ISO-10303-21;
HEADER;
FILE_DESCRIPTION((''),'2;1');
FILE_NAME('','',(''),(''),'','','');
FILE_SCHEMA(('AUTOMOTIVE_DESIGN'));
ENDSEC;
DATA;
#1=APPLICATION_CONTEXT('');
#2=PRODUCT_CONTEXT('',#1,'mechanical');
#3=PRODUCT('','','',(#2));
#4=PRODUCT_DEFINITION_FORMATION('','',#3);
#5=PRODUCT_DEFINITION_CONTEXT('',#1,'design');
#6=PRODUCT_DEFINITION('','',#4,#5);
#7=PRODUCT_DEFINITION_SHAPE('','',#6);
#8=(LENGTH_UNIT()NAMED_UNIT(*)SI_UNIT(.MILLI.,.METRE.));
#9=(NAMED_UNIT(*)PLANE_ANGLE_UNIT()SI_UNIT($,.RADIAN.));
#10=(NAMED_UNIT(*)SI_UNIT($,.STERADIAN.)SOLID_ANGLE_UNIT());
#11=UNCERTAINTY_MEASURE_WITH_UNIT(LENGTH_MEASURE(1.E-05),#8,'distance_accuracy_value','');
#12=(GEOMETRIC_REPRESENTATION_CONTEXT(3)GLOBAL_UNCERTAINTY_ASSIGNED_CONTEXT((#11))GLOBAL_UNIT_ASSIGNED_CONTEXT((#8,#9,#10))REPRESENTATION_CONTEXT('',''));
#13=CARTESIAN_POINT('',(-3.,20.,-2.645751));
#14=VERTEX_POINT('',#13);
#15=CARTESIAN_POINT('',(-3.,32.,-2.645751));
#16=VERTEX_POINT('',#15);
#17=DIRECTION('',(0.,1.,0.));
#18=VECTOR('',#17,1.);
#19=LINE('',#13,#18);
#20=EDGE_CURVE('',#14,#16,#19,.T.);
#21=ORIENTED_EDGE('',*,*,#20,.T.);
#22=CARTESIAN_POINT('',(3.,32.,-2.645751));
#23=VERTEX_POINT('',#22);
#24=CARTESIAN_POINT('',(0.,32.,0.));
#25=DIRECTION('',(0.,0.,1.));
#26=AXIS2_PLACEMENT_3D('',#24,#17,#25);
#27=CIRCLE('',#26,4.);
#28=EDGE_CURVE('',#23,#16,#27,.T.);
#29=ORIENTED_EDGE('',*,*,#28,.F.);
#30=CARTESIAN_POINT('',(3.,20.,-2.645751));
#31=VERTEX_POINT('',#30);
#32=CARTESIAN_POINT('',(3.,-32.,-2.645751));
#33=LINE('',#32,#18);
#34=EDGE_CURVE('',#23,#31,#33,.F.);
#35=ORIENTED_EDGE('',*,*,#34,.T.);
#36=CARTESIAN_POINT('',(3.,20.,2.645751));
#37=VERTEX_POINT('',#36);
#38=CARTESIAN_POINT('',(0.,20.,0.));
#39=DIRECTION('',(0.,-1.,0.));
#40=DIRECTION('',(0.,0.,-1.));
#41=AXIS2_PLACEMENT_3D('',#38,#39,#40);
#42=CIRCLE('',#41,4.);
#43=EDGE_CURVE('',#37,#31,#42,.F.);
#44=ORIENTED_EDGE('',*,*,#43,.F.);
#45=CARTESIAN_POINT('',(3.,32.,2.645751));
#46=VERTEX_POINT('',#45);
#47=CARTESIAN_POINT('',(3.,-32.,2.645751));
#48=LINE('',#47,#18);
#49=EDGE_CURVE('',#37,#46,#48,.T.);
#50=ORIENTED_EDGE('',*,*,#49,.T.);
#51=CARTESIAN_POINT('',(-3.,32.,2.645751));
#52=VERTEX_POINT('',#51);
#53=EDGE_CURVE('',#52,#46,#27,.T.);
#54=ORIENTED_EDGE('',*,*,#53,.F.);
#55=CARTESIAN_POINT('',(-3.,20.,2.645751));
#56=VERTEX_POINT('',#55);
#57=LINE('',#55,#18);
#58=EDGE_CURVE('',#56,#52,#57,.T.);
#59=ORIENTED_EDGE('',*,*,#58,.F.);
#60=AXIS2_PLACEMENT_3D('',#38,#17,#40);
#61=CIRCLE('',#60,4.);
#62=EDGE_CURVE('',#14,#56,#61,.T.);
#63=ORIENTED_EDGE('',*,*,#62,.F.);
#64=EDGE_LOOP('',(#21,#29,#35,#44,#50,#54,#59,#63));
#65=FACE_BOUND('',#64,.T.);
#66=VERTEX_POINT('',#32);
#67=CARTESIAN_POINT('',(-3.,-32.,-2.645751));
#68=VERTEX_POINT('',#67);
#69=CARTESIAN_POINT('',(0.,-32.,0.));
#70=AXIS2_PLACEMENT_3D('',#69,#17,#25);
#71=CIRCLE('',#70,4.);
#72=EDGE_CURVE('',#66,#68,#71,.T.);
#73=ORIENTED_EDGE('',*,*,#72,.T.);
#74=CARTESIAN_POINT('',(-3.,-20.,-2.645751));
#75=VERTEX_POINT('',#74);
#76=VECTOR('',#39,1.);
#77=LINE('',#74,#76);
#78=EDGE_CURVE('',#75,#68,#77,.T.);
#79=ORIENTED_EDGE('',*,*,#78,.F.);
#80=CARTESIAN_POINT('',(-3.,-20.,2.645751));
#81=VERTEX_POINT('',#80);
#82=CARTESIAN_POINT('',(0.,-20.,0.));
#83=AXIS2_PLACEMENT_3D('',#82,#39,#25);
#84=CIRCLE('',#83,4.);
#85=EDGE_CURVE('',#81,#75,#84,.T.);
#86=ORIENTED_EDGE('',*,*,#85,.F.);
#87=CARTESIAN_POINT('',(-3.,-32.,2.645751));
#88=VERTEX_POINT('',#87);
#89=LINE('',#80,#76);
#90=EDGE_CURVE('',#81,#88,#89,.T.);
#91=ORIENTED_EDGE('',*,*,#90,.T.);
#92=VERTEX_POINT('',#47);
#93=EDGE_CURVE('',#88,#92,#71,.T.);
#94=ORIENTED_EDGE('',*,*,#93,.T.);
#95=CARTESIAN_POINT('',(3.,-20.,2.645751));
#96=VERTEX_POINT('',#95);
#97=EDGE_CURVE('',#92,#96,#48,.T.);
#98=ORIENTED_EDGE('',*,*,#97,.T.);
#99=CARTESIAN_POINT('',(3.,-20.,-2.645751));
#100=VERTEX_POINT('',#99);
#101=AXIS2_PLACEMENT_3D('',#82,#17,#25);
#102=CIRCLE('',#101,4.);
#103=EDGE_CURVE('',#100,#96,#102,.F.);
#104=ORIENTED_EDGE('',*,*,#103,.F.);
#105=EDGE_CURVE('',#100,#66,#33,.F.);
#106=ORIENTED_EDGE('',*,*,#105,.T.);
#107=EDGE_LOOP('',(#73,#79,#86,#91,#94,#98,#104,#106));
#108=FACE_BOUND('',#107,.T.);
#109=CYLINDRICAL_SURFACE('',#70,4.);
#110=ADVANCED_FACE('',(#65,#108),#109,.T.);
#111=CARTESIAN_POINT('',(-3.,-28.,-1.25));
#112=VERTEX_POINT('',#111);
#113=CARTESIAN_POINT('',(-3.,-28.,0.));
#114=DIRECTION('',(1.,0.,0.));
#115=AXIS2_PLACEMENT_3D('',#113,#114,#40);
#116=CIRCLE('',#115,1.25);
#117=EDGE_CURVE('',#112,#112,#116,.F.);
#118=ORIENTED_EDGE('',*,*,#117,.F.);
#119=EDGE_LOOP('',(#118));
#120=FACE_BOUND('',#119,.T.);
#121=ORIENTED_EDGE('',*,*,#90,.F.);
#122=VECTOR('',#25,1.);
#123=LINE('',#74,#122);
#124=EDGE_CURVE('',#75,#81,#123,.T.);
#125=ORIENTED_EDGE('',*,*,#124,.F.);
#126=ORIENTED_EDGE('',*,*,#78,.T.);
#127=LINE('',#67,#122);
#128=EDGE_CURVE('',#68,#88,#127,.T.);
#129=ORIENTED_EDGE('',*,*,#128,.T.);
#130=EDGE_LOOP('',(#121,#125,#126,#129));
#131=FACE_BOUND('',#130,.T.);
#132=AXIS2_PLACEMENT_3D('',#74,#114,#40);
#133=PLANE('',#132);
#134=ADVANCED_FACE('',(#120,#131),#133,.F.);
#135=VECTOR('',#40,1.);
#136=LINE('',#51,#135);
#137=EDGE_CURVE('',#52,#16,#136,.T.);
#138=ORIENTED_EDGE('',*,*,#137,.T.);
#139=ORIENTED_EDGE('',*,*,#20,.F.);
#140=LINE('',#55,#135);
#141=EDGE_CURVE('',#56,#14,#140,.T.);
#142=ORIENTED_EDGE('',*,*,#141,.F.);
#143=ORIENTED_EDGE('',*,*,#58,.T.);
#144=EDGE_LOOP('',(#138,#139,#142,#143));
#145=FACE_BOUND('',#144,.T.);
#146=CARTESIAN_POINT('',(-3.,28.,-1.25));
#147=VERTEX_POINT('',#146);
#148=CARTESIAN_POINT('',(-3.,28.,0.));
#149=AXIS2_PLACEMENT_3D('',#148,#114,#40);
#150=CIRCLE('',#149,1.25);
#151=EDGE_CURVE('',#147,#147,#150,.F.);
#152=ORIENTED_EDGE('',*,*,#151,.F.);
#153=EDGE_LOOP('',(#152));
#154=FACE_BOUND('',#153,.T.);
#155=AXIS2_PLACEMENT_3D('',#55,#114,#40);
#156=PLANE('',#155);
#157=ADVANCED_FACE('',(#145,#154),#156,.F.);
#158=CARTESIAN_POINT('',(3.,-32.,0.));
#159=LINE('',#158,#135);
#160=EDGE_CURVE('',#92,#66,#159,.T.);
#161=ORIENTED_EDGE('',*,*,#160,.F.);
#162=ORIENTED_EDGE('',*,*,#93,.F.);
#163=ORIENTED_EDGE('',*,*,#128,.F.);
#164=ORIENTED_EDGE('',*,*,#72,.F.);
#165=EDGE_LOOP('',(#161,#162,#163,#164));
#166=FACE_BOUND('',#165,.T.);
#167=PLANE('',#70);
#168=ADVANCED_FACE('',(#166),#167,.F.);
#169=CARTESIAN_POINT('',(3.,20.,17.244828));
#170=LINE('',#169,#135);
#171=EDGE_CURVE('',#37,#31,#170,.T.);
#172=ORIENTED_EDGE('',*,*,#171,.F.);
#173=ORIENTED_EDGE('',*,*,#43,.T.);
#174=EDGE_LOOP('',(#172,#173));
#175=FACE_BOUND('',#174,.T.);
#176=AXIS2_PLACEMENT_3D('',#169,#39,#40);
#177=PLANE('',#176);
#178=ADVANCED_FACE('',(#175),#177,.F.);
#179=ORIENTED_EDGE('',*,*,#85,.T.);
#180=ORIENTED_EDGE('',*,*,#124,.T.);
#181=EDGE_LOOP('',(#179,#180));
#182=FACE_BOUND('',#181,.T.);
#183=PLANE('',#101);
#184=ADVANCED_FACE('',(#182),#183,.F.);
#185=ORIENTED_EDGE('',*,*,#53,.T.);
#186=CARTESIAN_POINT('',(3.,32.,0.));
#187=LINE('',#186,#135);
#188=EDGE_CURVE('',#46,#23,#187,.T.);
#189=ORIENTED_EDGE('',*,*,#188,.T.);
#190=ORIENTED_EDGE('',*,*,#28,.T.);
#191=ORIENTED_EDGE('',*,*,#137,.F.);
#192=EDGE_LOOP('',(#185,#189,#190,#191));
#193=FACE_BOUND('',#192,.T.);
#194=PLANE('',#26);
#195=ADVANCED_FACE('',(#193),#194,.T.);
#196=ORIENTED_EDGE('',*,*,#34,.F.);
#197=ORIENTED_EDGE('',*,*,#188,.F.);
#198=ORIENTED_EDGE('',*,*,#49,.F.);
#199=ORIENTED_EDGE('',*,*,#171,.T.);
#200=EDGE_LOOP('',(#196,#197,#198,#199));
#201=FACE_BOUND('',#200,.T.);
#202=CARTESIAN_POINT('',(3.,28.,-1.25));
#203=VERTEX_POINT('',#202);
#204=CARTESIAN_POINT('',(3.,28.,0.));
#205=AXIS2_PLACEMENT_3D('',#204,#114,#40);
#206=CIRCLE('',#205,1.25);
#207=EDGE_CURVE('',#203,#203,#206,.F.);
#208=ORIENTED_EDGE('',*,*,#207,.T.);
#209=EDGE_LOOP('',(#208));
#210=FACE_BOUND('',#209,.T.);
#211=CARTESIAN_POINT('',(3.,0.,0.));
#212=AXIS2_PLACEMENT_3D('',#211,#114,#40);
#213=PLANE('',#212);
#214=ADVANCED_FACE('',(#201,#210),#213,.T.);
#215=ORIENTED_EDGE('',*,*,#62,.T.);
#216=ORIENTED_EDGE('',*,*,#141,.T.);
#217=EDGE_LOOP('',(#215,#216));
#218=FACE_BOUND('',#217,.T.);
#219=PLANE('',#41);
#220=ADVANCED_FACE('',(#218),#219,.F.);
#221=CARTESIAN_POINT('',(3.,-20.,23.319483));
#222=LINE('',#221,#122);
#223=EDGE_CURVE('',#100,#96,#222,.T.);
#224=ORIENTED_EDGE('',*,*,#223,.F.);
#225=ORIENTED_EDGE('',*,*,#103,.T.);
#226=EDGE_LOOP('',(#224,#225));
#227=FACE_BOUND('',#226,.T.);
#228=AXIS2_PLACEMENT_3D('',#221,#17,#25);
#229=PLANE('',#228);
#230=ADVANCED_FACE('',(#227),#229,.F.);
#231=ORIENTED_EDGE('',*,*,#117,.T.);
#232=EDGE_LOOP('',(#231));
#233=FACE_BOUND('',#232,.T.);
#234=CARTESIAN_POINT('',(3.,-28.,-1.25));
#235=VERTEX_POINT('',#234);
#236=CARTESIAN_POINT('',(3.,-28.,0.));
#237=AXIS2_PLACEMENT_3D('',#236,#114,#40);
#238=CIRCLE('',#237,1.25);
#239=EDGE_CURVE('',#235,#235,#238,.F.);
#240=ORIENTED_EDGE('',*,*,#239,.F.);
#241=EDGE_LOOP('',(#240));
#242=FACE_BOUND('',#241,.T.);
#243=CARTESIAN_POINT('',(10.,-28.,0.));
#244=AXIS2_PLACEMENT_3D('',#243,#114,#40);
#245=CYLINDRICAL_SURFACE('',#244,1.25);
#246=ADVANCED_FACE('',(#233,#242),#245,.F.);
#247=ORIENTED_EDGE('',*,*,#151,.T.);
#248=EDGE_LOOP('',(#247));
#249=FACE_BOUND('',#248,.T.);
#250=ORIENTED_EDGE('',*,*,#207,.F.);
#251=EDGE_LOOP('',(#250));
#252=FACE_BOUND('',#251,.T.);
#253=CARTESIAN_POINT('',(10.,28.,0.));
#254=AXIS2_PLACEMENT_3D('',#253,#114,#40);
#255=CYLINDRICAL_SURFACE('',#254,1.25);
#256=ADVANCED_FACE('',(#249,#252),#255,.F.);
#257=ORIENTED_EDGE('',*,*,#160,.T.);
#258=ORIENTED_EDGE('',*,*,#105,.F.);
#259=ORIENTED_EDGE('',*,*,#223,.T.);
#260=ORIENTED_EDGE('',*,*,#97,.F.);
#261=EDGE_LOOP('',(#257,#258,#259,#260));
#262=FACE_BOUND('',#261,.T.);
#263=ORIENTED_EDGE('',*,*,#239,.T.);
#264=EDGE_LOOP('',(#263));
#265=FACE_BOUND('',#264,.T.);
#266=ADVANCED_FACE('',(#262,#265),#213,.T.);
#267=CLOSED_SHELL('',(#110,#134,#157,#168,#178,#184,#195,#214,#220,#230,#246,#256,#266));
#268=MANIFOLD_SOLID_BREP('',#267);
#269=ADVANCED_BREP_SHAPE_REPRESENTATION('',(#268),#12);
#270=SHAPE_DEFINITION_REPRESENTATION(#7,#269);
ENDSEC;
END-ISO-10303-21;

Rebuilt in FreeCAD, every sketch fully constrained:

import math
import FreeCAD as App
import Part
import Sketcher
from FreeCAD import Vector
Q = App.Units.Quantity


def add_polygon(sketch, points):
    """Adds a closed chain of lines whose ends are joined by coincident constraints."""
    first, n = sketch.GeometryCount, len(points)
    for a, b in zip(points, points[1:] + points[:1]):
        sketch.addGeometry(Part.LineSegment(App.Vector(*a, 0), App.Vector(*b, 0)), False)
    for i in range(n):
        sketch.addConstraint(Sketcher.Constraint("Coincident", first + i, 2, first + (i + 1) % n, 1))

doc = App.newDocument("Part")
body = doc.addObject("PartDesign::Body", "Body")

sketch1 = body.newObject("Sketcher::SketchObject", "Sketch")
sketch1.AttachmentSupport = (doc.getObject("XZ_Plane"), [""])
sketch1.MapMode = "FlatFace"
sketch1.addGeometry(Part.Circle(Vector(0, 0, 0), Vector(0, 0, 1), 4), False)
sketch1.addConstraint([
    Sketcher.Constraint("Coincident", 0, 3, -1, 1),
    Sketcher.Constraint("Diameter", 0, Q("8 mm")),
])
pad1 = body.newObject("PartDesign::Pad", "Pad")
pad1.Profile = sketch1
pad1.Type = "TwoLengths"
pad1.Length = 32
pad1.Length2 = 32
pad1.Reversed = True

sketch2 = body.newObject("Sketcher::SketchObject", "Sketch001")
sketch2.AttachmentSupport = (doc.getObject("YZ_Plane"), [""])
sketch2.MapMode = "FlatFace"
sketch2.AttachmentOffset = App.Placement(Vector(0, 0, 10), App.Rotation())
sketch2.addGeometry([
    Part.Circle(Vector(28, 0, 0), Vector(0, 0, 1), 1.2),
    Part.Circle(Vector(-28, 0, 0), Vector(0, 0, 1), 1.2),
], False)
sketch2.addConstraint([
    Sketcher.Constraint("Equal", 0, 1),
    Sketcher.Constraint("Symmetric", 0, 3, 1, 3, -1, 1),
    Sketcher.Constraint("PointOnObject", 0, 3, -1),
    Sketcher.Constraint("Diameter", 0, Q("2.5 mm")),
    Sketcher.Constraint("DistanceX", -1, 1, 0, 3, Q("28 mm")),
])
doc.recompute()
hole = body.newObject("PartDesign::Hole", "Hole")
hole.Profile = sketch2
hole.ThreadType = "None"
hole.Diameter = 2.5
hole.DepthType = "ThroughAll"
hole.HoleCutType = "Countersink"
hole.HoleCutDiameter = 3.05
hole.HoleCutCountersinkAngle = 90

sketch3 = body.newObject("Sketcher::SketchObject", "Sketch002")
sketch3.AttachmentSupport = (doc.getObject("YZ_Plane"), [""])
sketch3.MapMode = "FlatFace"
sketch3.AttachmentOffset = App.Placement(Vector(0, 0, 10), App.Rotation())
add_polygon(sketch3, [(39, 17), (20, 17), (20, -16), (39, -16)])
add_polygon(sketch3, [(-20, 23), (-56, 23), (-56, -23), (-20, -23)])
sketch3.addConstraint([
    Sketcher.Constraint("Horizontal", 0),
    Sketcher.Constraint("Vertical", 1),
    Sketcher.Constraint("Horizontal", 2),
    Sketcher.Constraint("Vertical", 3),
    Sketcher.Constraint("Horizontal", 4),
    Sketcher.Constraint("Vertical", 5),
    Sketcher.Constraint("Horizontal", 6),
    Sketcher.Constraint("Vertical", 7),
    Sketcher.Constraint("DistanceX", -1, 1, 0, 2, Q("20 mm")),
    Sketcher.Constraint("DistanceX", 6, 2, -1, 1, Q("20 mm")),
    Sketcher.Constraint("DistanceX", 4, 2, 4, 1, Q("35.55272 mm")),
    Sketcher.Constraint("DistanceY", 1, 2, 4, 2, Q("39.325401 mm")),
    Sketcher.Constraint("DistanceX", 0, 2, 0, 1, Q("19.055235 mm")),
    Sketcher.Constraint("DistanceY", 1, 2, 1, 1, Q("33.250745 mm")),
    Sketcher.Constraint("DistanceY", 5, 2, 5, 1, Q("46.103437 mm")),
    Sketcher.Constraint("DistanceY", -1, 1, 0, 2, Q("17.244828 mm")),
])
pocket1 = body.newObject("PartDesign::Pocket", "Pocket")
pocket1.Profile = sketch3
pocket1.Length = 7

sketch4 = body.newObject("Sketcher::SketchObject", "Sketch003")
sketch4.AttachmentSupport = (doc.getObject("XZ_Plane"), [""])
sketch4.MapMode = "FlatFace"
sketch4.AttachmentOffset = App.Placement(Vector(0, 0, 32), App.Rotation())
sketch4.addGeometry([
    Part.LineSegment(Vector(3, 2.6, 0), Vector(3, -2.6, 0)),
    Part.ArcOfCircle(Part.Circle(Vector(0, 0, 0), Vector(0, 0, 1), 4), math.radians(-41), math.radians(41)),
    Part.LineSegment(Vector(-3, -2.6, 0), Vector(-3, 2.6, 0)),
    Part.ArcOfCircle(Part.Circle(Vector(0, 0, 0), Vector(0, 0, 1), 4), math.radians(139), math.radians(221)),
], False)
sketch4.addConstraint([
    Sketcher.Constraint("Coincident", 0, 1, 1, 2),
    Sketcher.Constraint("Coincident", 1, 1, 0, 2),
    Sketcher.Constraint("Coincident", 2, 1, 3, 2),
    Sketcher.Constraint("Coincident", 3, 1, 2, 2),
    Sketcher.Constraint("Vertical", 0),
    Sketcher.Constraint("Vertical", 2),
    Sketcher.Constraint("Coincident", 1, 3, -1, 1),
    Sketcher.Constraint("Coincident", 3, 3, -1, 1),
    Sketcher.Constraint("Equal", 1, 3),
    Sketcher.Constraint("Horizontal", 1, 1, 2, 1),
    Sketcher.Constraint("Radius", 1, Q("4 mm")),
    Sketcher.Constraint("DistanceX", -1, 1, 0, 1, Q("3 mm")),
])
pocket2 = body.newObject("PartDesign::Pocket", "Pocket001")
pocket2.Profile = sketch4
pocket2.Length = 12

sketch5 = body.newObject("Sketcher::SketchObject", "Sketch004")
sketch5.AttachmentSupport = (doc.getObject("XZ_Plane"), [""])
sketch5.MapMode = "FlatFace"
sketch5.AttachmentOffset = App.Placement(Vector(0, 0, -20), App.Rotation())
sketch5.addGeometry([
    Part.LineSegment(Vector(3, -2.6, 0), Vector(3, 2.6, 0)),
    Part.ArcOfCircle(Part.Circle(Vector(0, 0, 0), Vector(0, 0, 1), 4), math.radians(-41), math.radians(41)),
    Part.LineSegment(Vector(-3, 2.6, 0), Vector(-3, -2.6, 0)),
    Part.ArcOfCircle(Part.Circle(Vector(0, 0, 0), Vector(0, 0, 1), 4), math.radians(139), math.radians(221)),
], False)
sketch5.addConstraint([
    Sketcher.Constraint("Coincident", 0, 1, 1, 1),
    Sketcher.Constraint("Coincident", 1, 2, 0, 2),
    Sketcher.Constraint("Coincident", 2, 1, 3, 1),
    Sketcher.Constraint("Coincident", 3, 2, 2, 2),
    Sketcher.Constraint("Vertical", 0),
    Sketcher.Constraint("Vertical", 2),
    Sketcher.Constraint("Coincident", 1, 3, -1, 1),
    Sketcher.Constraint("Coincident", 3, 3, -1, 1),
    Sketcher.Constraint("Equal", 1, 3),
    Sketcher.Constraint("Horizontal", 1, 2, 2, 1),
    Sketcher.Constraint("Radius", 1, Q("4 mm")),
    Sketcher.Constraint("DistanceX", -1, 1, 0, 1, Q("3 mm")),
])
pocket3 = body.newObject("PartDesign::Pocket", "Pocket002")
pocket3.Profile = sketch5
pocket3.Length = 12

doc.recompute()
